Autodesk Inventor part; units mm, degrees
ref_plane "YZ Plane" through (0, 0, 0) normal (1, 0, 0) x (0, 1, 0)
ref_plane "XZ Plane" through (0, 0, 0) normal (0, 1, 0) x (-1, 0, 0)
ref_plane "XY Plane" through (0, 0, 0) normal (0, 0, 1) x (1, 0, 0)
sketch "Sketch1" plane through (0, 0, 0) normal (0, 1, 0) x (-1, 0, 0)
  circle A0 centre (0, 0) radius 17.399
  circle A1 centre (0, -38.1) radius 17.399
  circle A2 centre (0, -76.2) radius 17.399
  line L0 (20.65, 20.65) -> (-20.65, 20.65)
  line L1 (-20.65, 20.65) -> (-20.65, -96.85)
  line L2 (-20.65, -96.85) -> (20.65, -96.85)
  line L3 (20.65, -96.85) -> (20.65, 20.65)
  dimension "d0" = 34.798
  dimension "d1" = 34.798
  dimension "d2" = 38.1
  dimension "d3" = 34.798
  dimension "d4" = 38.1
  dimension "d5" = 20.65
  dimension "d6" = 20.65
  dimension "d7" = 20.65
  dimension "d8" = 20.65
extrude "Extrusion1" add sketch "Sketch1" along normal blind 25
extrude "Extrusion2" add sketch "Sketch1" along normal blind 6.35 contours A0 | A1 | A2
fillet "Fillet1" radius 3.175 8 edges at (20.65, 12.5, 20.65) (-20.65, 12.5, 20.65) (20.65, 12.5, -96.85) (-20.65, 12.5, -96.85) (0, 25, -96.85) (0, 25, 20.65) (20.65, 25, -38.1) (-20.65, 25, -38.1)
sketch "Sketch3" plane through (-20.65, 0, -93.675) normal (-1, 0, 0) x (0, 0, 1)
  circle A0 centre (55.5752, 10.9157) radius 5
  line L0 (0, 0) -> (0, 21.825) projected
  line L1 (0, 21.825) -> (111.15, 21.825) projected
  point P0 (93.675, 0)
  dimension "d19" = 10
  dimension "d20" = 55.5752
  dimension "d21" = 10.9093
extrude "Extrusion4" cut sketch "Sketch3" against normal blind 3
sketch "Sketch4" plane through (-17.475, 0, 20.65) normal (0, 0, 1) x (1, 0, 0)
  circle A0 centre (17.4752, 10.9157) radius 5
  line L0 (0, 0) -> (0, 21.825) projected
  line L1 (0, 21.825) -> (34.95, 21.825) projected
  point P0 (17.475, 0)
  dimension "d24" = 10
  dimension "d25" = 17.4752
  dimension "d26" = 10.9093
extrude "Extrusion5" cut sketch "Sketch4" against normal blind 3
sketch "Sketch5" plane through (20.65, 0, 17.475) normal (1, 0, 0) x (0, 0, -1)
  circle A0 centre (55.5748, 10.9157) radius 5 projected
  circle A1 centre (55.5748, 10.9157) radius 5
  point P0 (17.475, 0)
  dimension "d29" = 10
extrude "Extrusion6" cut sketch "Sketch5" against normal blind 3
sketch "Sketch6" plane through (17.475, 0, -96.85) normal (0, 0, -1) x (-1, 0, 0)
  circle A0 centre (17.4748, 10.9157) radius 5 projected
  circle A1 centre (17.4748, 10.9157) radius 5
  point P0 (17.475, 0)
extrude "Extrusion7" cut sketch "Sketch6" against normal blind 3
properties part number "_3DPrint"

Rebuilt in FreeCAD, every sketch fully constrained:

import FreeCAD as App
import Part
import Sketcher
from FreeCAD import Vector
Q = App.Units.Quantity


def edges_at(feature, points):
    """Names of the edges that pass closest to the given points."""
    edges = feature.Shape.Edges
    near = lambda p: min(range(len(edges)), key=lambda i: edges[i].distToShape(Part.Vertex(*p))[0])
    return sorted({f"Edge{near(p) + 1}" for p in points})


def add_polygon(sketch, points):
    """Adds a closed chain of lines whose ends are joined by coincident constraints."""
    first, n = sketch.GeometryCount, len(points)
    for a, b in zip(points, points[1:] + points[:1]):
        sketch.addGeometry(Part.LineSegment(App.Vector(*a, 0), App.Vector(*b, 0)), False)
    for i in range(n):
        sketch.addConstraint(Sketcher.Constraint("Coincident", first + i, 2, first + (i + 1) % n, 1))

doc = App.newDocument("Part")
body = doc.addObject("PartDesign::Body", "Body")

# Sketch on XZ plane
sketch1 = body.newObject("Sketcher::SketchObject", "Sketch")
sketch1.AttachmentSupport = (doc.getObject("XZ_Plane"), [""])
sketch1.MapMode = "FlatFace"
add_polygon(sketch1, [(-21, -97), (-21, 21), (21, 21), (21, -97)])  # lines 0-3
sketch1.addGeometry(Part.Circle(Vector(0, -76, 0), Vector(0, 0, 1), 17), False)  # 4
sketch1.addGeometry(Part.Circle(Vector(0, -38, 0), Vector(0, 0, 1), 17), False)  # 5
sketch1.addGeometry(Part.Circle(Vector(0, 0, 0), Vector(0, 0, 1), 17), False)  # 6
sketch1.addConstraint(Sketcher.Constraint("Vertical", 0))
sketch1.addConstraint(Sketcher.Constraint("Horizontal", 1))
sketch1.addConstraint(Sketcher.Constraint("Vertical", 2))
sketch1.addConstraint(Sketcher.Constraint("Horizontal", 3))
sketch1.addConstraint(Sketcher.Constraint("Coincident", 6, 3, -1, 1))
sketch1.addConstraint(Sketcher.Constraint("Equal", 4, 5))
sketch1.addConstraint(Sketcher.Constraint("Equal", 5, 6))
sketch1.addConstraint(Sketcher.Constraint("PointOnObject", 4, 3, -2))
sketch1.addConstraint(Sketcher.Constraint("PointOnObject", 5, 3, -2))
sketch1.addConstraint(Sketcher.Constraint("Diameter", 4, Q("34.798 mm")))
sketch1.addConstraint(Sketcher.Constraint("DistanceY", 5, 3, -1, 1, Q("38.1 mm")))
sketch1.addConstraint(Sketcher.Constraint("DistanceY", 4, 3, 5, 3, Q("38.1 mm")))
sketch1.addConstraint(Sketcher.Constraint("DistanceX", 0, 2, -1, 1, Q("20.65 mm")))
sketch1.addConstraint(Sketcher.Constraint("DistanceY", -1, 1, 0, 2, Q("20.65 mm")))
sketch1.addConstraint(Sketcher.Constraint("DistanceX", -1, 1, 1, 2, Q("20.65 mm")))
sketch1.addConstraint(Sketcher.Constraint("DistanceY", 2, 2, 4, 3, Q("20.65 mm")))
pad1 = body.newObject("PartDesign::Pad", "Pad")
pad1.Profile = sketch1
pad1.Length = 25
pad1.Reversed = True

# Sketch on XZ plane
sketch2 = body.newObject("Sketcher::SketchObject", "Sketch001")
sketch2.AttachmentSupport = (doc.getObject("XZ_Plane"), [""])
sketch2.MapMode = "FlatFace"
sketch2.addGeometry(Part.Circle(Vector(0, 0, 0), Vector(0, 0, 1), 17), False)
sketch2.addGeometry(Part.Circle(Vector(0, -38, 0), Vector(0, 0, 1), 17), False)
sketch2.addGeometry(Part.Circle(Vector(0, -76, 0), Vector(0, 0, 1), 17), False)
sketch2.addConstraint(Sketcher.Constraint("Coincident", 0, 3, -1, 1))
sketch2.addConstraint(Sketcher.Constraint("Equal", 0, 1))
sketch2.addConstraint(Sketcher.Constraint("Equal", 1, 2))
sketch2.addConstraint(Sketcher.Constraint("PointOnObject", 1, 3, -2))
sketch2.addConstraint(Sketcher.Constraint("PointOnObject", 2, 3, -2))
sketch2.addConstraint(Sketcher.Constraint("Diameter", 0, Q("34.798 mm")))
sketch2.addConstraint(Sketcher.Constraint("DistanceY", 1, 3, -1, 1, Q("38.1 mm")))
sketch2.addConstraint(Sketcher.Constraint("DistanceY", 2, 3, 1, 3, Q("38.1 mm")))
pad2 = body.newObject("PartDesign::Pad", "Pad001")
pad2.Profile = sketch2
pad2.Length = 6.35
pad2.Reversed = True
doc.recompute()

fillet = body.newObject("PartDesign::Fillet", "Fillet")
fillet.Base = (pad2, edges_at(pad2, [
    (20.65, 12.5, 20.65),
    (-20.65, 12.5, 20.65),
    (20.65, 12.5, -96.85),
    (-20.65, 12.5, -96.85),
    (0, 25, -96.85),
    (0, 25, 20.65),
    (20.65, 25, -38.1),
    (-20.65, 25, -38.1),
]))
fillet.Radius = 3.175

# Sketch on YZ plane
sketch3 = body.newObject("Sketcher::SketchObject", "Sketch002")
sketch3.AttachmentSupport = (doc.getObject("YZ_Plane"), [""])
sketch3.MapMode = "FlatFace"
sketch3.AttachmentOffset = App.Placement(Vector(0, 0, -20.65), App.Rotation())
sketch3.addGeometry(Part.Circle(Vector(11, -38, 0), Vector(0, 0, 1), 5), False)
sketch3.addConstraint(Sketcher.Constraint("Diameter", 0, Q("10 mm")))
sketch3.addConstraint(Sketcher.Constraint("DistanceX", -1, 1, 0, 3, Q("10.9157 mm")))
sketch3.addConstraint(Sketcher.Constraint("DistanceY", 0, 3, -1, 1, Q("38.0998 mm")))
pocket1 = body.newObject("PartDesign::Pocket", "Pocket")
pocket1.Profile = sketch3
pocket1.Length = 3
pocket1.Reversed = True

# Sketch on XY plane
sketch4 = body.newObject("Sketcher::SketchObject", "Sketch003")
sketch4.AttachmentSupport = (doc.getObject("XY_Plane"), [""])
sketch4.MapMode = "FlatFace"
sketch4.AttachmentOffset = App.Placement(Vector(0, 0, 20.65), App.Rotation())
sketch4.addGeometry(Part.Circle(Vector(0, 11, 0), Vector(0, 0, 1), 5), False)
sketch4.addConstraint(Sketcher.Constraint("Diameter", 0, Q("10 mm")))
sketch4.addConstraint(Sketcher.Constraint("DistanceX", -1, 1, 0, 3, Q("0.0002 mm")))
sketch4.addConstraint(Sketcher.Constraint("DistanceY", -1, 1, 0, 3, Q("10.9157 mm")))
pocket2 = body.newObject("PartDesign::Pocket", "Pocket001")
pocket2.Profile = sketch4
pocket2.Length = 3

# Sketch on YZ plane
sketch5 = body.newObject("Sketcher::SketchObject", "Sketch004")
sketch5.AttachmentSupport = (doc.getObject("YZ_Plane"), [""])
sketch5.MapMode = "FlatFace"
sketch5.AttachmentOffset = App.Placement(Vector(0, 0, 20.65), App.Rotation())
sketch5.addGeometry(Part.Circle(Vector(11, -38, 0), Vector(0, 0, 1), 5), False)
sketch5.addConstraint(Sketcher.Constraint("Diameter", 0, Q("10 mm")))
sketch5.addConstraint(Sketcher.Constraint("DistanceX", -1, 1, 0, 3, Q("10.9157 mm")))
sketch5.addConstraint(Sketcher.Constraint("DistanceY", 0, 3, -1, 1, Q("38.0998 mm")))
pocket3 = body.newObject("PartDesign::Pocket", "Pocket002")
pocket3.Profile = sketch5
pocket3.Length = 3

# Sketch on XY plane
sketch6 = body.newObject("Sketcher::SketchObject", "Sketch005")
sketch6.AttachmentSupport = (doc.getObject("XY_Plane"), [""])
sketch6.MapMode = "FlatFace"
sketch6.AttachmentOffset = App.Placement(Vector(0, 0, -96.85), App.Rotation())
sketch6.addGeometry(Part.Circle(Vector(0, 11, 0), Vector(0, 0, 1), 5), False)
sketch6.addConstraint(Sketcher.Constraint("Diameter", 0, Q("10 mm")))
sketch6.addConstraint(Sketcher.Constraint("DistanceX", -1, 1, 0, 3, Q("0.0002 mm")))
sketch6.addConstraint(Sketcher.Constraint("DistanceY", -1, 1, 0, 3, Q("10.9157 mm")))
pocket4 = body.newObject("PartDesign::Pocket", "Pocket003")
pocket4.Profile = sketch6
pocket4.Length = 3
pocket4.Reversed = True

doc.recompute()
